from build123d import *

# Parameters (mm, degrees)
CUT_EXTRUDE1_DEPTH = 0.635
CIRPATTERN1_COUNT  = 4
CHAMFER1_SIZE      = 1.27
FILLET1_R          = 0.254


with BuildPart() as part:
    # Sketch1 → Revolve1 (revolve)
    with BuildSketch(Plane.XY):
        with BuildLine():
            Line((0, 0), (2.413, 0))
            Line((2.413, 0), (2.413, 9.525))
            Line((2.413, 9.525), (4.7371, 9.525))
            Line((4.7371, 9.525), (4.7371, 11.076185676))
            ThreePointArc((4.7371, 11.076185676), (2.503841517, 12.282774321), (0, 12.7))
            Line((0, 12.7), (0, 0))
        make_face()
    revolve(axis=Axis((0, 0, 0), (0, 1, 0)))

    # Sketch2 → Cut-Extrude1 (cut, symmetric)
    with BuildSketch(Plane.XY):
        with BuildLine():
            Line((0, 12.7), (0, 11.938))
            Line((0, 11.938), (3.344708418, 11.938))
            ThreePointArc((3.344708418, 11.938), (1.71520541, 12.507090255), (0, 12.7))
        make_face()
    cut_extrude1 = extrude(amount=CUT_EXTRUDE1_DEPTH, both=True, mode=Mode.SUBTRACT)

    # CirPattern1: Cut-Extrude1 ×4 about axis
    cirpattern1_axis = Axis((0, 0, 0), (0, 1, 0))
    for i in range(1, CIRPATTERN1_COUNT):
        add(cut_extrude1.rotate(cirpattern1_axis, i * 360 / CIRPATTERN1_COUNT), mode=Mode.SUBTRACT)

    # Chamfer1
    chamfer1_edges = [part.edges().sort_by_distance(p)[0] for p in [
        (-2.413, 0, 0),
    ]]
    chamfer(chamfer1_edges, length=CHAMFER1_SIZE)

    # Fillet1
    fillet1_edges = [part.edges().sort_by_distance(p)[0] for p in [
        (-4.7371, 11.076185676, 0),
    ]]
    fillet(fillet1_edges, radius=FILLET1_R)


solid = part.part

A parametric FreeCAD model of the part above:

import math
import FreeCAD as App
import Part
import Sketcher

V = App.Vector
Q = App.Units.Quantity


def edges_at(feature, points):
    """Names of the edges that pass closest to the given points."""
    edges = feature.Shape.Edges
    near = lambda p: min(range(len(edges)), key=lambda i: edges[i].distToShape(Part.Vertex(*p))[0])
    return sorted({f"Edge{near(p) + 1}" for p in points})

doc = App.newDocument("Part")
body = doc.addObject("PartDesign::Body", "Body")

sketch1 = doc.addObject("Sketcher::SketchObject", "Sketch")
body.addObject(sketch1)
sketch1.AttachmentSupport = (doc.XY_Plane, [""])
sketch1.MapMode = "FlatFace"
sketch1.addGeometry([
    Part.LineSegment(V(0, 0, 0), V(2.4, 0, 0)),
    Part.LineSegment(V(2.4, 0, 0), V(2.4, 9.5, 0)),
    Part.LineSegment(V(2.4, 9.5, 0), V(4.7, 9.5, 0)),
    Part.LineSegment(V(4.7, 9.5, 0), V(4.7, 11.1, 0)),
    Part.ArcOfCircle(Part.Circle(V(0, 5, 0), V(0, 0, 1), 7.7), math.radians(52), math.radians(90)),
    Part.LineSegment(V(0, 12.7, 0), V(0, 0, 0)),
], False)
sketch1.addConstraint([
    Sketcher.Constraint("Coincident", 0, 2, 1, 1),
    Sketcher.Constraint("Coincident", 1, 2, 2, 1),
    Sketcher.Constraint("Coincident", 2, 2, 3, 1),
    Sketcher.Constraint("Coincident", 3, 2, 4, 1),
    Sketcher.Constraint("Coincident", 4, 2, 5, 1),
    Sketcher.Constraint("Coincident", 5, 2, 0, 1),
    Sketcher.Constraint("Horizontal", 0),
    Sketcher.Constraint("Vertical", 1),
    Sketcher.Constraint("Horizontal", 2),
    Sketcher.Constraint("Vertical", 3),
    Sketcher.Constraint("Vertical", 5),
    Sketcher.Constraint("Coincident", 5, 2, -1, 1),
    Sketcher.Constraint("PointOnObject", 4, 3, -2),
    Sketcher.Constraint("DistanceY", 5, 2, 5, 1, Q("0.5 in")),
    Sketcher.Constraint("Radius", 4, Q("0.304 in")),
    Sketcher.Constraint("DistanceX", 0, 1, 0, 2, Q("0.095 in")),
    Sketcher.Constraint("DistanceY", 1, 1, 1, 2, Q("0.375 in")),
    Sketcher.Constraint("DistanceX", 2, 1, 2, 2, Q("0.0915 in")),
])
revolution = doc.addObject("PartDesign::Revolution", "Revolution")
body.addObject(revolution)
revolution.Profile = sketch1
revolution.ReferenceAxis = (sketch1, ["V_Axis"])
revolution.Angle = 360

sketch2 = doc.addObject("Sketcher::SketchObject", "Sketch001")
body.addObject(sketch2)
sketch2.AttachmentSupport = (doc.XY_Plane, [""])
sketch2.MapMode = "FlatFace"
sketch2.addGeometry([
    Part.LineSegment(V(0, 12.7, 0), V(0, 11.9, 0)),
    Part.LineSegment(V(0, 11.9, 0), V(3.3, 11.9, 0)),
    Part.ArcOfCircle(Part.Circle(V(0, 5, 0), V(0, 0, 1), 7.7), math.radians(64), math.radians(90)),
], False)
sketch2.addConstraint([
    Sketcher.Constraint("Coincident", 0, 2, 1, 1),
    Sketcher.Constraint("Coincident", 1, 2, 2, 1),
    Sketcher.Constraint("Coincident", 2, 2, 0, 1),
    Sketcher.Constraint("Vertical", 0),
    Sketcher.Constraint("Horizontal", 1),
    Sketcher.Constraint("PointOnObject", 2, 3, -2),
    Sketcher.Constraint("PointOnObject", 0, 2, -2),
    Sketcher.Constraint("Radius", 2, Q("0.304 in")),
    Sketcher.Constraint("DistanceY", 0, 2, 0, 1, Q("0.03 in")),
    Sketcher.Constraint("DistanceY", -1, 1, 2, 2, Q("0.5 in")),
])
pocket1 = doc.addObject("PartDesign::Pocket", "Pocket")
body.addObject(pocket1)
pocket1.Profile = sketch2
pocket1.Length = Q("0.05 in")
pocket1.Midplane = True
doc.recompute()

polarpattern = doc.addObject("PartDesign::PolarPattern", "PolarPattern")
body.addObject(polarpattern)
polarpattern.Originals = [pocket1]
polarpattern.Axis = (doc.Y_Axis, [""])
polarpattern.Angle = 360
polarpattern.Occurrences = 4
body.Tip = polarpattern
doc.recompute()

chamfer = doc.addObject("PartDesign::Chamfer", "Chamfer")
body.addObject(chamfer)
chamfer.Base = (polarpattern, edges_at(polarpattern, [(-2.413, 0, 0)]))
chamfer.Size = Q("0.05 in")
doc.recompute()

fillet = doc.addObject("PartDesign::Fillet", "Fillet")
body.addObject(fillet)
fillet.Base = (chamfer, edges_at(chamfer, [(-4.737, 11.076, 0)]))
fillet.Radius = Q("0.01 in")

doc.recompute()
